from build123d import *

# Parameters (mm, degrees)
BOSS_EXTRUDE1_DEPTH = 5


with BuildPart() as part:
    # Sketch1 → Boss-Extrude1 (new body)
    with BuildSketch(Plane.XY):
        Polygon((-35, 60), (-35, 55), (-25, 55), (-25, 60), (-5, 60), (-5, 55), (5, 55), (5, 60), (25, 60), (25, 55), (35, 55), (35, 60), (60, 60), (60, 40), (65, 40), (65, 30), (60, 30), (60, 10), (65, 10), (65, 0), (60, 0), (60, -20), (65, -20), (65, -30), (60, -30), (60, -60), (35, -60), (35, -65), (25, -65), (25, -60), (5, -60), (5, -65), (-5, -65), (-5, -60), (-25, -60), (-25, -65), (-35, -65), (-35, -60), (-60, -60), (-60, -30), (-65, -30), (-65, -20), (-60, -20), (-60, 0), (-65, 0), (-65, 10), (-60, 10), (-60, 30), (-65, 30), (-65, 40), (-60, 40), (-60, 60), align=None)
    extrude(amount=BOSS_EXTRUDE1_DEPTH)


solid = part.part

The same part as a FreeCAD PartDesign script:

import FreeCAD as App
import Part
import Sketcher
Q = App.Units.Quantity


def add_polygon(sketch, points):
    """Adds a closed chain of lines whose ends are joined by coincident constraints."""
    first, n = sketch.GeometryCount, len(points)
    for a, b in zip(points, points[1:] + points[:1]):
        sketch.addGeometry(Part.LineSegment(App.Vector(*a, 0), App.Vector(*b, 0)), False)
    for i in range(n):
        sketch.addConstraint(Sketcher.Constraint("Coincident", first + i, 2, first + (i + 1) % n, 1))

doc = App.newDocument("Part")
body = doc.addObject("PartDesign::Body", "Body")

# Sketch on XY plane
sketch1 = doc.addObject("Sketcher::SketchObject", "Sketch")
body.addObject(sketch1)
sketch1.AttachmentSupport = (doc.XY_Plane, [""])
sketch1.MapMode = "FlatFace"
add_polygon(sketch1, [(-35, 55), (-35, 60), (-60, 60), (-60, 40), (-65, 40), (-65, 30), (-60, 30), (-60, 10), (-65, 10), (-65, 0), (-60, 0), (-60, -20), (-65, -20), (-65, -30), (-60, -30), (-60, -60), (-35, -60), (-35, -65), (-25, -65), (-25, -60), (-5, -60), (-5, -65), (5, -65), (5, -60), (25, -60), (25, -65), (35, -65), (35, -60), (60, -60), (60, -30), (65, -30), (65, -20), (60, -20), (60, 0), (65, 0), (65, 10), (60, 10), (60, 30), (65, 30), (65, 40), (60, 40), (60, 60), (35, 60), (35, 55), (25, 55), (25, 60), (5, 60), (5, 55), (-5, 55), (-5, 60), (-25, 60), (-25, 55)])  # lines 0-51
sketch1.addConstraint([
    Sketcher.Constraint("Vertical", 0),
    Sketcher.Constraint("Horizontal", 1),
    Sketcher.Constraint("Vertical", 2),
    Sketcher.Constraint("Horizontal", 3),
    Sketcher.Constraint("Vertical", 4),
    Sketcher.Constraint("Horizontal", 5),
    Sketcher.Constraint("Vertical", 6),
    Sketcher.Constraint("Horizontal", 7),
    Sketcher.Constraint("Vertical", 8),
    Sketcher.Constraint("Horizontal", 9),
    Sketcher.Constraint("Vertical", 10),
    Sketcher.Constraint("Horizontal", 11),
    Sketcher.Constraint("Vertical", 12),
    Sketcher.Constraint("Horizontal", 13),
    Sketcher.Constraint("Vertical", 14),
    Sketcher.Constraint("Horizontal", 15),
    Sketcher.Constraint("Vertical", 16),
    Sketcher.Constraint("Horizontal", 17),
    Sketcher.Constraint("Vertical", 18),
    Sketcher.Constraint("Horizontal", 19),
    Sketcher.Constraint("Vertical", 20),
    Sketcher.Constraint("Horizontal", 21),
    Sketcher.Constraint("Vertical", 22),
    Sketcher.Constraint("Horizontal", 23),
    Sketcher.Constraint("Vertical", 24),
    Sketcher.Constraint("Horizontal", 25),
    Sketcher.Constraint("Vertical", 26),
    Sketcher.Constraint("Horizontal", 27),
    Sketcher.Constraint("Vertical", 28),
    Sketcher.Constraint("Horizontal", 29),
    Sketcher.Constraint("Vertical", 30),
    Sketcher.Constraint("Horizontal", 31),
    Sketcher.Constraint("Vertical", 32),
    Sketcher.Constraint("Horizontal", 33),
    Sketcher.Constraint("Vertical", 34),
    Sketcher.Constraint("Horizontal", 35),
    Sketcher.Constraint("Vertical", 36),
    Sketcher.Constraint("Horizontal", 37),
    Sketcher.Constraint("Vertical", 38),
    Sketcher.Constraint("Horizontal", 39),
    Sketcher.Constraint("Vertical", 40),
    Sketcher.Constraint("Horizontal", 41),
    Sketcher.Constraint("Vertical", 42),
    Sketcher.Constraint("Horizontal", 43),
    Sketcher.Constraint("Vertical", 44),
    Sketcher.Constraint("Horizontal", 45),
    Sketcher.Constraint("Vertical", 46),
    Sketcher.Constraint("Horizontal", 47),
    Sketcher.Constraint("Vertical", 48),
    Sketcher.Constraint("Horizontal", 49),
    Sketcher.Constraint("Vertical", 50),
    Sketcher.Constraint("Horizontal", 51),
    Sketcher.Constraint("Symmetric", 0, 2, 26, 2, -1, 1),
    Sketcher.Constraint("Symmetric", 5, 2, 28, 2, -1, 1),
    Sketcher.Constraint("Symmetric", 9, 2, 32, 2, -1, 1),
    Sketcher.Constraint("Symmetric", 13, 2, 36, 2, -1, 1),
    Sketcher.Constraint("Symmetric", 14, 2, 40, 2, -1, 1),
    Sketcher.Constraint("Symmetric", 18, 2, 44, 2, -1, 1),
    Sketcher.Constraint("Symmetric", 22, 2, 48, 2, -1, 1),
    Sketcher.Constraint("Symmetric", 19, 2, 22, 2, -2),
    Sketcher.Constraint("Symmetric", 17, 2, 24, 2, -2),
    Sketcher.Constraint("Symmetric", 15, 2, 26, 2, -2),
    Sketcher.Constraint("Symmetric", 13, 2, 28, 2, -2),
    Sketcher.Constraint("Symmetric", 11, 2, 30, 2, -2),
    Sketcher.Constraint("Symmetric", 8, 2, 33, 2, -2),
    Sketcher.Constraint("Symmetric", 3, 2, 38, 2, -2),
    Sketcher.Constraint("Symmetric", 43, 2, 50, 2, -2),
    Sketcher.Constraint("Horizontal", 15, 2, 18, 2),
    Sketcher.Constraint("Horizontal", 17, 2, 20, 2),
    Sketcher.Constraint("Horizontal", 7, 2, 34, 2),
    Sketcher.Constraint("Horizontal", 43, 2, 46, 2),
    Sketcher.Constraint("Vertical", 2, 2, 5, 2),
    Sketcher.Constraint("Vertical", 4, 2, 7, 2),
    Sketcher.Constraint("Vertical", 6, 2, 9, 2),
    Sketcher.Constraint("Vertical", 8, 2, 11, 2),
    Sketcher.Constraint("Vertical", 26, 2, 41, 2),
    Sketcher.Constraint("Vertical", 22, 2, 45, 2),
    Sketcher.Constraint("Equal", 17, 21),
    Sketcher.Constraint("Equal", 39, 0),
    Sketcher.Constraint("Equal", 49, 2),
    Sketcher.Constraint("Equal", 51, 4),
    Sketcher.Constraint("Equal", 2, 6),
    Sketcher.Constraint("Equal", 4, 8),
    Sketcher.Constraint("Equal", 6, 10),
    Sketcher.Constraint("Equal", 0, 16),
    Sketcher.Constraint("DistanceX", 1, 2, 1, 1, Q("25 mm")),
    Sketcher.Constraint("DistanceX", 3, 2, 3, 1, Q("5 mm")),
    Sketcher.Constraint("DistanceX", 17, 1, 17, 2, Q("10 mm")),
    Sketcher.Constraint("DistanceX", 19, 1, 19, 2, Q("20 mm")),
])
pad1 = doc.addObject("PartDesign::Pad", "Pad")
body.addObject(pad1)
pad1.Profile = sketch1
pad1.Length = 5

doc.recompute()
